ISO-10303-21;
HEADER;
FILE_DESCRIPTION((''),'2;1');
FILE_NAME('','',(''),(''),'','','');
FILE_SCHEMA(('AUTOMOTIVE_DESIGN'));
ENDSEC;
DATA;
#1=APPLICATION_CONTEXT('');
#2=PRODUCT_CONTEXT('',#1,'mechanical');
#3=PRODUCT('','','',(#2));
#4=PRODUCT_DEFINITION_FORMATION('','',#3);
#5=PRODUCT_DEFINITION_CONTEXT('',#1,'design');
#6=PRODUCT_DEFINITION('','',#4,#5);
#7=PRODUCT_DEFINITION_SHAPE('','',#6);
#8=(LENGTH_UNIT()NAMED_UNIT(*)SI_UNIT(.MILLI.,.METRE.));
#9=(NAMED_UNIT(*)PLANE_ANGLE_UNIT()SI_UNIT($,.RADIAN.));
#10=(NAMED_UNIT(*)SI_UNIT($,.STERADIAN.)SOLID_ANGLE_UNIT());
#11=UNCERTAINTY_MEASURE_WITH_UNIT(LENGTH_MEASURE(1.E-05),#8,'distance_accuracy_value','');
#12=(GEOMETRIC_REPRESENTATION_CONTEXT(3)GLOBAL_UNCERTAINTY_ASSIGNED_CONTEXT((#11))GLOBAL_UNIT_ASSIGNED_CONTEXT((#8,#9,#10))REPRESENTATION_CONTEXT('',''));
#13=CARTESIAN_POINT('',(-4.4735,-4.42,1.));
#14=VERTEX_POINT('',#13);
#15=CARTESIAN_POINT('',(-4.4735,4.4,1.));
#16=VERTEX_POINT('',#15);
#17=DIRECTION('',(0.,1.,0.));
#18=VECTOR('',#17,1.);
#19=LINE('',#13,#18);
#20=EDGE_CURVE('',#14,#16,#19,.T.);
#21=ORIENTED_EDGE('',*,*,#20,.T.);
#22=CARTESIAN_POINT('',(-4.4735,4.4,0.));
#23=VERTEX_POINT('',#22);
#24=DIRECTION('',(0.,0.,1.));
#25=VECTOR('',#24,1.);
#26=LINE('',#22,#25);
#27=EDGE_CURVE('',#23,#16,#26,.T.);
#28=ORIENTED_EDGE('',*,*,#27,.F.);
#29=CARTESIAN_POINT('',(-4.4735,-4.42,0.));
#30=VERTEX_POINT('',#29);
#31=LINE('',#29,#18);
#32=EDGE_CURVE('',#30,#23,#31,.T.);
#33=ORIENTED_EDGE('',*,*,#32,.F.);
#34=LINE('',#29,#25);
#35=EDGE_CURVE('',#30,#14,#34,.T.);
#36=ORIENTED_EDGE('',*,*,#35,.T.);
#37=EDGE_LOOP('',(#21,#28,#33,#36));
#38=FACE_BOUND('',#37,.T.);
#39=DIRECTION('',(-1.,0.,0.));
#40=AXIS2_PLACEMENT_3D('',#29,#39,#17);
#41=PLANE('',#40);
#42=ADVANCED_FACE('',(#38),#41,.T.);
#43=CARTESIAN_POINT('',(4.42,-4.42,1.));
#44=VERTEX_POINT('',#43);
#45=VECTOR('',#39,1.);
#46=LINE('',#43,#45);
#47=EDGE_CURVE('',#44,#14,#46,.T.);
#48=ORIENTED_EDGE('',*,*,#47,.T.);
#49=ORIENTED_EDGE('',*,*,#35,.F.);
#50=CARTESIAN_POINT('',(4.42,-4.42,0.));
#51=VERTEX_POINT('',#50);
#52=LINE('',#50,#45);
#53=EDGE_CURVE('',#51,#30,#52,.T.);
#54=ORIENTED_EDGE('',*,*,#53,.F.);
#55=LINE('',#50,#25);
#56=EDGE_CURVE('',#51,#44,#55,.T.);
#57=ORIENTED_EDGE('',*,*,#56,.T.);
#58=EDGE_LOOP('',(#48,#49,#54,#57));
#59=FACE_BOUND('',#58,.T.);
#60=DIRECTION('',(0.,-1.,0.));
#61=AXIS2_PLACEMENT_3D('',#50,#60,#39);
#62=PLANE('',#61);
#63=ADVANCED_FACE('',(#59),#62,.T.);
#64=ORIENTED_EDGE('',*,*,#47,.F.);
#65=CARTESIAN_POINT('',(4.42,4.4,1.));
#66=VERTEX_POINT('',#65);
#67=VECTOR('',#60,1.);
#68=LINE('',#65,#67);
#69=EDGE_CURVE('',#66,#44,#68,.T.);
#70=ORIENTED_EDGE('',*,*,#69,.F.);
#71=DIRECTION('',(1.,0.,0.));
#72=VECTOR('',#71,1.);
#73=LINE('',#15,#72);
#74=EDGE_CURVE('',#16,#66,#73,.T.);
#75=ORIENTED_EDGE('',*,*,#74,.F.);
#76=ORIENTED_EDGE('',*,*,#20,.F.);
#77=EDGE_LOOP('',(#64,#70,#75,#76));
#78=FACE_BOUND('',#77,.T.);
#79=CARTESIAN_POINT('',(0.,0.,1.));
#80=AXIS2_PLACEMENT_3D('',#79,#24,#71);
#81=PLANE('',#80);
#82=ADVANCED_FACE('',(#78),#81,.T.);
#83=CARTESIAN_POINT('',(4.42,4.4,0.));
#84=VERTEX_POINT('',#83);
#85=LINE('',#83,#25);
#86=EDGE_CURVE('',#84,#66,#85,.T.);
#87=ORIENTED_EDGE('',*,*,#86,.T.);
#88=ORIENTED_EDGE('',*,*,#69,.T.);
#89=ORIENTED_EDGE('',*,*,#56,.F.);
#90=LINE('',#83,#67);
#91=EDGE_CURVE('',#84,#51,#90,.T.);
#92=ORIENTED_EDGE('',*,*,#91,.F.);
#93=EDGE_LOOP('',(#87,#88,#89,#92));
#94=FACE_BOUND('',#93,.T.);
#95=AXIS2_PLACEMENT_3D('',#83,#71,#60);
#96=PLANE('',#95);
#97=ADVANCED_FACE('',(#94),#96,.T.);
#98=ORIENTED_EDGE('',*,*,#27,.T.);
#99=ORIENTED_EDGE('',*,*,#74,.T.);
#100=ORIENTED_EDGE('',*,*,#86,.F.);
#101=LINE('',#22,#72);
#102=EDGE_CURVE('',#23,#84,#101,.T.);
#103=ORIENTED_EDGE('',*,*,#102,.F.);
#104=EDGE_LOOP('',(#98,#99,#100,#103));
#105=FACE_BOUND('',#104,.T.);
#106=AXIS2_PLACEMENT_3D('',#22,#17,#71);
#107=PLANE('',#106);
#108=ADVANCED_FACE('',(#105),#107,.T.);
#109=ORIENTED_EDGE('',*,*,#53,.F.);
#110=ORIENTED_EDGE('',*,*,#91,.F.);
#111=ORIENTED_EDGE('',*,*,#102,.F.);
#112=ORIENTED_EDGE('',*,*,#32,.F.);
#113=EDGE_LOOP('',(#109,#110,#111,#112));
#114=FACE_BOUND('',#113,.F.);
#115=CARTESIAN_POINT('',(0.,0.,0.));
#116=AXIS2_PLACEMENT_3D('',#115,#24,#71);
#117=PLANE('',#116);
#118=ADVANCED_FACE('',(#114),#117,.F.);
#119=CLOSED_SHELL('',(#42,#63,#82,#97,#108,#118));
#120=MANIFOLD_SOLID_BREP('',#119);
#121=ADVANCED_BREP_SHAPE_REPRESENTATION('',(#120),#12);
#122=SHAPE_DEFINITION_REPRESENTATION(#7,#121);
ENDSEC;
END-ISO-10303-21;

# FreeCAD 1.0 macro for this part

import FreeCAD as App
import Part
import Sketcher
from FreeCAD import Vector
Q = App.Units.Quantity

doc = App.newDocument("Part")
body = doc.addObject("PartDesign::Body", "Body")

# Sketch on XY plane
sketch1 = doc.addObject("Sketcher::SketchObject", "Sketch")
body.addObject(sketch1)
sketch1.AttachmentSupport = (doc.XY_Plane, [""])
sketch1.MapMode = "FlatFace"
sketch1.addGeometry(Part.LineSegment(Vector(4.42, 4.4, 0), Vector(-4.4735, 4.4, 0)), False)
sketch1.addGeometry(Part.LineSegment(Vector(-4.4735, 4.4, 0), Vector(-4.4735, -4.42, 0)), False)
sketch1.addGeometry(Part.LineSegment(Vector(-4.4735, -4.42, 0), Vector(4.42, -4.42, 0)), False)
sketch1.addGeometry(Part.LineSegment(Vector(4.42, -4.42, 0), Vector(4.42, 4.4, 0)), False)
sketch1.addConstraint(Sketcher.Constraint("Coincident", 0, 2, 1, 1))
sketch1.addConstraint(Sketcher.Constraint("Coincident", 1, 2, 2, 1))
sketch1.addConstraint(Sketcher.Constraint("Coincident", 2, 2, 3, 1))
sketch1.addConstraint(Sketcher.Constraint("Coincident", 3, 2, 0, 1))
sketch1.addConstraint(Sketcher.Constraint("Horizontal", 0))
sketch1.addConstraint(Sketcher.Constraint("Vertical", 1))
sketch1.addConstraint(Sketcher.Constraint("Horizontal", 2))
sketch1.addConstraint(Sketcher.Constraint("Vertical", 3))
sketch1.addConstraint(Sketcher.Constraint("DistanceY", 1, 2, 1, 1, Q("8.82 mm")))
sketch1.addConstraint(Sketcher.Constraint("DistanceY", -1, 1, 0, 2, Q("4.4 mm")))
sketch1.addConstraint(Sketcher.Constraint("DistanceX", -1, 1, 2, 2, Q("4.42 mm")))
sketch1.addConstraint(Sketcher.Constraint("DistanceX", 0, 2, 0, 1, Q("8.8935 mm")))
pad1 = doc.addObject("PartDesign::Pad", "Pad")
body.addObject(pad1)
pad1.Profile = sketch1
pad1.Length = 1

doc.recompute()
